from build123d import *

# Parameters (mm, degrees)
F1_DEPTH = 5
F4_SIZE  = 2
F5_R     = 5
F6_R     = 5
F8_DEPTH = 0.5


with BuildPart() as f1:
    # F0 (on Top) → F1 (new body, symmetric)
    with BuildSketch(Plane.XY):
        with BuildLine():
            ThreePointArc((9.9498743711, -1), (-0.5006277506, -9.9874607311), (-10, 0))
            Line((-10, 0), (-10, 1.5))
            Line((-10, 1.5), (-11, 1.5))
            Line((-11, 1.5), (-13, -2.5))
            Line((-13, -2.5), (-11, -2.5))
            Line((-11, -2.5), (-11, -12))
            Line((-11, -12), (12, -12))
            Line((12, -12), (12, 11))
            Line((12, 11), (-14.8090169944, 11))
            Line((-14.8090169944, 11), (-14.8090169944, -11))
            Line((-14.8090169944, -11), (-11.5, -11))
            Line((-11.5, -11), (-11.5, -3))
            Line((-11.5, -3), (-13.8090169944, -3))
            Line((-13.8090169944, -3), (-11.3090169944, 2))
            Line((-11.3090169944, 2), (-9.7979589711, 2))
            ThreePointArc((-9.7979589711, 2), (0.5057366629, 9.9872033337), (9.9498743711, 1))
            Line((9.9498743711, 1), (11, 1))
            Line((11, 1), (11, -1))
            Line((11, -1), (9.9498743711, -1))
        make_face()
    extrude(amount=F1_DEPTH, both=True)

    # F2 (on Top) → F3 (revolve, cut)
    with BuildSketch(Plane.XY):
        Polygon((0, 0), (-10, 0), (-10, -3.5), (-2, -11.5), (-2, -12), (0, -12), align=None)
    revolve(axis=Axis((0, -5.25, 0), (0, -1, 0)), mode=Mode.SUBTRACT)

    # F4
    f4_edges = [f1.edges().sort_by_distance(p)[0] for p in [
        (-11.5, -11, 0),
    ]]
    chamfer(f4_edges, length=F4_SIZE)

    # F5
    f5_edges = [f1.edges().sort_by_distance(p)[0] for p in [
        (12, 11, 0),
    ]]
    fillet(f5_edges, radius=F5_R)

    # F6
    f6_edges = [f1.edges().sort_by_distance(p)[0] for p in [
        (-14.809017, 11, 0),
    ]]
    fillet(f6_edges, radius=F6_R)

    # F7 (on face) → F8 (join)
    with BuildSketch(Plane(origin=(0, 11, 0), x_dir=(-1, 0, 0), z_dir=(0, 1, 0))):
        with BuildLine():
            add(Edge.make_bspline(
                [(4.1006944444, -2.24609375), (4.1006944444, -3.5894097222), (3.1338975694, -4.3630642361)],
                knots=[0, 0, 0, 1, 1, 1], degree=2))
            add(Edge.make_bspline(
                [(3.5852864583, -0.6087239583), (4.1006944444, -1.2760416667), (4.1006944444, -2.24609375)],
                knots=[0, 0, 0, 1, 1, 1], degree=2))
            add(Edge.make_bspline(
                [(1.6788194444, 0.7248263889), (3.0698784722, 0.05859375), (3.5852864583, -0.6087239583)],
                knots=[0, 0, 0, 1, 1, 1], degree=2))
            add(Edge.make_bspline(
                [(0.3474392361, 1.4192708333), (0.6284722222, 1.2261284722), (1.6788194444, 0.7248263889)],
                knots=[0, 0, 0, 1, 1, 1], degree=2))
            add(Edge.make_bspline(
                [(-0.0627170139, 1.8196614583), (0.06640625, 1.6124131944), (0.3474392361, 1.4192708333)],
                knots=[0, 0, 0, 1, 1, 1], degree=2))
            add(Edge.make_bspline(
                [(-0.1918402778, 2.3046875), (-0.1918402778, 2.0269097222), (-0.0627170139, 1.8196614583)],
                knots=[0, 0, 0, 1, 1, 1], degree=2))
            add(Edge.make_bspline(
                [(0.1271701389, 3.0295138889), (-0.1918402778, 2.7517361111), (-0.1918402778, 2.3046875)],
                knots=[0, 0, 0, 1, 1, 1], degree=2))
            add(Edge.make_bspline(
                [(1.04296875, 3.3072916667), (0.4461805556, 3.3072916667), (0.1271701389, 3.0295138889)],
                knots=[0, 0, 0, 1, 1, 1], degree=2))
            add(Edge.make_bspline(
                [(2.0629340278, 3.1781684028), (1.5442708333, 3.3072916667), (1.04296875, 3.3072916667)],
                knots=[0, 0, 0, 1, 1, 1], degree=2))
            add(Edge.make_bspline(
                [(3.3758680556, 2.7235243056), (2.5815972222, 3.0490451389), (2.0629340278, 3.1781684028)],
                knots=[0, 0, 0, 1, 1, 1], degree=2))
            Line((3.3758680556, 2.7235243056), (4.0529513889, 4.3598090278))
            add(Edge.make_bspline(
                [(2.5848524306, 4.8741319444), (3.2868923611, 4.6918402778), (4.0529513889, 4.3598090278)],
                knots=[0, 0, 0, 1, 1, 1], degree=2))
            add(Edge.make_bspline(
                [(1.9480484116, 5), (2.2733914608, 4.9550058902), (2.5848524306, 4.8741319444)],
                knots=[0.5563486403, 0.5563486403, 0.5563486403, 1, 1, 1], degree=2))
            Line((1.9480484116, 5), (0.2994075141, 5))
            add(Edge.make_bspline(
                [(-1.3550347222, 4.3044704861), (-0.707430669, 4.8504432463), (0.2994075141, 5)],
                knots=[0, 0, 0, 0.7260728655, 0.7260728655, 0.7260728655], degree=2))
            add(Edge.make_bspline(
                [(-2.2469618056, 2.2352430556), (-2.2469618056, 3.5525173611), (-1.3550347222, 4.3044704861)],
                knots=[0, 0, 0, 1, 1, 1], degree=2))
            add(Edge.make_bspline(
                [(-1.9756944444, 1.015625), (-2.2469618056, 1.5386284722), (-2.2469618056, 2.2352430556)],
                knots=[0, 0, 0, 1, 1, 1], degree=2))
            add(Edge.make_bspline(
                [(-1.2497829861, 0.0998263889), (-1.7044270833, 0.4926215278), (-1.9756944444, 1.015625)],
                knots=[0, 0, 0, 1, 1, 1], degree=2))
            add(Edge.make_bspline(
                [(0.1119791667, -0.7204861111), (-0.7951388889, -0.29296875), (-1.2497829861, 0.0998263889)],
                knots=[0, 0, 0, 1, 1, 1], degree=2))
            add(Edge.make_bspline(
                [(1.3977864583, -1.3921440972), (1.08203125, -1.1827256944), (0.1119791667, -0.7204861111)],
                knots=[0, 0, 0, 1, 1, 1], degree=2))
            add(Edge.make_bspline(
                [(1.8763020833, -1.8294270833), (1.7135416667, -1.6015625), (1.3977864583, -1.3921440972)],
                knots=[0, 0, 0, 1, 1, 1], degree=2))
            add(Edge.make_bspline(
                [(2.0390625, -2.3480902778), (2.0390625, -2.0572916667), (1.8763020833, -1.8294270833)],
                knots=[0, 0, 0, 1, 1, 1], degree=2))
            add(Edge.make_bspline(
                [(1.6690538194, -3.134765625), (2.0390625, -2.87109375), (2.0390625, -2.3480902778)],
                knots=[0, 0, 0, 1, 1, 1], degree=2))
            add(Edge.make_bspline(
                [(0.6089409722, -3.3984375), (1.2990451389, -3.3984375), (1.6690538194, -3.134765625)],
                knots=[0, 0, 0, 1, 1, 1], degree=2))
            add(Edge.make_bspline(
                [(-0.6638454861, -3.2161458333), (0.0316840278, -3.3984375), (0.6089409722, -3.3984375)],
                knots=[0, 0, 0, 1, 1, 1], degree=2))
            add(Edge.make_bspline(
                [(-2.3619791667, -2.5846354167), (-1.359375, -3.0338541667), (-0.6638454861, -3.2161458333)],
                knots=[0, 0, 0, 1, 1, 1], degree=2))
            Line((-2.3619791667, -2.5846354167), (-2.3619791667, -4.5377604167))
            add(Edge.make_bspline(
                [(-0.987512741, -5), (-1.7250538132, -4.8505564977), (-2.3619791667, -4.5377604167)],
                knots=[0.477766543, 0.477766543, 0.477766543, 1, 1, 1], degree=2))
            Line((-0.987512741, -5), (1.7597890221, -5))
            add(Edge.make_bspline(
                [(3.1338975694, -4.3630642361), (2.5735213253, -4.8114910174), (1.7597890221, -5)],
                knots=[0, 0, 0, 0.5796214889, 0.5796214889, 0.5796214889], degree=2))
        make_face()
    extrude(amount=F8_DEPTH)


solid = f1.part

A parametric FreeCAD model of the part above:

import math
import FreeCAD as App
import Part
import Sketcher
Q = App.Units.Quantity


def edges_at(feature, points):
    """Names of the edges that pass closest to the given points."""
    edges = feature.Shape.Edges
    near = lambda p: min(range(len(edges)), key=lambda i: edges[i].distToShape(Part.Vertex(*p))[0])
    return sorted({f"Edge{near(p) + 1}" for p in points})


def add_polygon(sketch, points):
    """Adds a closed chain of lines whose ends are joined by coincident constraints."""
    first, n = sketch.GeometryCount, len(points)
    for a, b in zip(points, points[1:] + points[:1]):
        sketch.addGeometry(Part.LineSegment(App.Vector(*a, 0), App.Vector(*b, 0)), False)
    for i in range(n):
        sketch.addConstraint(Sketcher.Constraint("Coincident", first + i, 2, first + (i + 1) % n, 1))

doc = App.newDocument("Part")
body = doc.addObject("PartDesign::Body", "Body")

sketch1 = doc.addObject("Sketcher::SketchObject", "Sketch")
body.addObject(sketch1)
sketch1.AttachmentSupport = (doc.XY_Plane, [""])
sketch1.MapMode = "FlatFace"
sketch1.addGeometry([
    Part.ArcOfCircle(Part.Circle(App.Vector(0, 0, 0), App.Vector(0, 0, 1), 10), math.radians(180), math.radians(354.26083)),
    Part.LineSegment(App.Vector(-10, 0, 0), App.Vector(-10, 1.5, 0)),
    Part.LineSegment(App.Vector(-10, 1.5, 0), App.Vector(-11, 1.5, 0)),
    Part.LineSegment(App.Vector(-11, 1.5, 0), App.Vector(-13, -2.5, 0)),
    Part.LineSegment(App.Vector(-13, -2.5, 0), App.Vector(-11, -2.5, 0)),
    Part.LineSegment(App.Vector(-11, -2.5, 0), App.Vector(-11, -12, 0)),
    Part.LineSegment(App.Vector(-11, -12, 0), App.Vector(12, -12, 0)),
    Part.LineSegment(App.Vector(12, -12, 0), App.Vector(12, 11, 0)),
    Part.LineSegment(App.Vector(12, 11, 0), App.Vector(-14.809017, 11, 0)),
    Part.LineSegment(App.Vector(-14.809017, 11, 0), App.Vector(-14.809017, -11, 0)),
    Part.LineSegment(App.Vector(-14.809017, -11, 0), App.Vector(-11.5, -11, 0)),
    Part.LineSegment(App.Vector(-11.5, -11, 0), App.Vector(-11.5, -3, 0)),
    Part.LineSegment(App.Vector(-11.5, -3, 0), App.Vector(-13.809017, -3, 0)),
    Part.LineSegment(App.Vector(-13.809017, -3, 0), App.Vector(-11.309017, 2, 0)),
    Part.LineSegment(App.Vector(-11.309017, 2, 0), App.Vector(-9.797959, 2, 0)),
    Part.ArcOfCircle(Part.Circle(App.Vector(0, 0, 0), App.Vector(0, 0, 1), 10), math.radians(5.73917), math.radians(168.463041)),
    Part.LineSegment(App.Vector(9.949874, 1, 0), App.Vector(11, 1, 0)),
    Part.LineSegment(App.Vector(11, 1, 0), App.Vector(11, -1, 0)),
    Part.LineSegment(App.Vector(11, -1, 0), App.Vector(9.949874, -1, 0)),
], False)
sketch1.addConstraint([
    Sketcher.Constraint("Tangent", 0, 1, 1, 1),
    Sketcher.Constraint("Coincident", 1, 2, 2, 1),
    Sketcher.Constraint("Coincident", 2, 2, 3, 1),
    Sketcher.Constraint("Coincident", 3, 2, 4, 1),
    Sketcher.Constraint("Coincident", 4, 2, 5, 1),
    Sketcher.Constraint("Coincident", 5, 2, 6, 1),
    Sketcher.Constraint("Coincident", 6, 2, 7, 1),
    Sketcher.Constraint("Coincident", 7, 2, 8, 1),
    Sketcher.Constraint("Coincident", 8, 2, 9, 1),
    Sketcher.Constraint("Coincident", 9, 2, 10, 1),
    Sketcher.Constraint("Coincident", 10, 2, 11, 1),
    Sketcher.Constraint("Coincident", 11, 2, 12, 1),
    Sketcher.Constraint("Coincident", 12, 2, 13, 1),
    Sketcher.Constraint("Coincident", 13, 2, 14, 1),
    Sketcher.Constraint("Coincident", 14, 2, 15, 2),
    Sketcher.Constraint("Coincident", 15, 1, 16, 1),
    Sketcher.Constraint("Coincident", 16, 2, 17, 1),
    Sketcher.Constraint("Coincident", 17, 2, 18, 1),
    Sketcher.Constraint("Coincident", 18, 2, 0, 2),
    Sketcher.Constraint("Vertical", 1),
    Sketcher.Constraint("Horizontal", 2),
    Sketcher.Constraint("Horizontal", 4),
    Sketcher.Constraint("Vertical", 5),
    Sketcher.Constraint("Horizontal", 6),
    Sketcher.Constraint("Vertical", 7),
    Sketcher.Constraint("Horizontal", 8),
    Sketcher.Constraint("Vertical", 9),
    Sketcher.Constraint("Horizontal", 10),
    Sketcher.Constraint("Vertical", 11),
    Sketcher.Constraint("Horizontal", 12),
    Sketcher.Constraint("Horizontal", 14),
    Sketcher.Constraint("Horizontal", 16),
    Sketcher.Constraint("Vertical", 17),
    Sketcher.Constraint("Horizontal", 18),
    Sketcher.Constraint("Coincident", 0, 3, -1, 1),
    Sketcher.Constraint("Coincident", 15, 3, -1, 1),
    Sketcher.Constraint("Equal", 0, 15),
    Sketcher.Constraint("Parallel", 3, 13),
    Sketcher.Constraint("Vertical", 2, 2, 4, 2),
    Sketcher.Constraint("Vertical", 15, 1, 18, 2),
    Sketcher.Constraint("Equal", 6, 7),
    Sketcher.Constraint("Equal", 4, 17),
    Sketcher.Constraint("Radius", 0, 10.0),
    Sketcher.Constraint("DistanceX", 2, 2, 2, 1, 1.0),
    Sketcher.Constraint("DistanceX", 4, 1, 4, 2, 2.0),
    Sketcher.Constraint("DistanceX", 6, 1, 6, 2, 23.0),
    Sketcher.Constraint("DistanceY", 9, 2, 9, 1, 22.0),
    Sketcher.Constraint("DistanceY", 11, 1, 11, 2, 8.0),
    Sketcher.Constraint("DistanceY", 1, 1, 1, 2, 1.5),
    Sketcher.Constraint("DistanceY", 5, 2, 5, 1, 9.5),
    Sketcher.Constraint("DistanceY", 5, 2, -1, 1, 12.0),
    Sketcher.Constraint("DistanceY", -1, 1, 13, 2, 2.0),
    Sketcher.Constraint("DistanceX", -1, 1, 16, 2, 11.0),
    Sketcher.Constraint("DistanceX", 10, 2, -1, 1, 11.5),
    Sketcher.Constraint("DistanceX", 14, 1, 14, 2, 1.511058),
    Sketcher.Constraint("DistanceX", 8, 2, 8, 1, 26.809017),
])
pad1 = doc.addObject("PartDesign::Pad", "Pad")
body.addObject(pad1)
pad1.Profile = sketch1
pad1.Length = 10
pad1.Midplane = True

sketch2 = doc.addObject("Sketcher::SketchObject", "Sketch001")
body.addObject(sketch2)
sketch2.AttachmentSupport = (doc.XY_Plane, [""])
sketch2.MapMode = "FlatFace"
add_polygon(sketch2, [(0, 0), (-10, 0), (-10, -3.5), (-2, -11.5), (-2, -12), (0, -12)])
sketch2.addConstraint([
    Sketcher.Constraint("Horizontal", 0),
    Sketcher.Constraint("Vertical", 1),
    Sketcher.Constraint("Vertical", 3),
    Sketcher.Constraint("Horizontal", 4),
    Sketcher.Constraint("Vertical", 5),
    Sketcher.Constraint("Coincident", 5, 2, -1, 1),
    Sketcher.Constraint("DistanceX", 0, 2, 0, 1, 10.0),
    Sketcher.Constraint("DistanceX", 4, 1, 4, 2, 2.0),
    Sketcher.Constraint("DistanceY", 5, 1, 5, 2, 12.0),
    Sketcher.Constraint("Angle", 2, Q("-45 deg")),
    Sketcher.Constraint("DistanceY", 1, 2, 1, 1, 3.5),
])
groove = doc.addObject("PartDesign::Groove", "Groove")
body.addObject(groove)
groove.Profile = sketch2
groove.ReferenceAxis = (sketch2, ["V_Axis"])
groove.Angle = 360
doc.recompute()

chamfer = doc.addObject("PartDesign::Chamfer", "Chamfer")
body.addObject(chamfer)
chamfer.Base = (groove, edges_at(groove, [(-11.5, -11, 0)]))
chamfer.Size = 2
doc.recompute()

fillet = doc.addObject("PartDesign::Fillet", "Fillet")
body.addObject(fillet)
fillet.Base = (chamfer, edges_at(chamfer, [(12, 11, 0)]))
fillet.Radius = 5
doc.recompute()

fillet2 = doc.addObject("PartDesign::Fillet", "Fillet001")
body.addObject(fillet2)
fillet2.Base = (fillet, edges_at(fillet, [(-14.809, 11, 0)]))
fillet2.Radius = 5

sketch3 = doc.addObject("Sketcher::SketchObject", "Sketch002")
body.addObject(sketch3)
sketch3.AttachmentSupport = (doc.XZ_Plane, [""])
sketch3.MapMode = "FlatFace"
sketch3.AttachmentOffset = App.Placement(App.Vector(0, 0, -11), App.Rotation())
sketch3.addGeometry([
    Part.BSplineCurve([App.Vector(-3.585286, -0.608724, 0), App.Vector(-4.100694, -1.276042, 0), App.Vector(-4.100694, -3.58941, 0), App.Vector(-3.133898, -4.363064, 0)], [3, 1, 3], [0, 1, 2.384787472], False, 2, [1, 1, 1, 1], False),
    Part.BSplineCurve([App.Vector(-1.678819, 0.724826, 0), App.Vector(-3.069878, 0.058594, 0), App.Vector(-3.585286, -0.608724, 0)], [3, 3], [0, 1], False, 2, [1, 1, 1], False),
    Part.BSplineCurve([App.Vector(-2.062934, 3.178168, 0), App.Vector(-1.544271, 3.307292, 0), App.Vector(-0.446181, 3.307292, 0), App.Vector(0.19184, 2.751736, 0), App.Vector(0.19184, 2.02691, 0), App.Vector(-0.066406, 1.612413, 0), App.Vector(-0.628472, 1.226128, 0), App.Vector(-1.678819, 0.724826, 0)], [3, 1, 1, 1, 1, 1, 3], [0, 1, 2.19047619, 3.380952381, 4.120665742, 4.860379103, 5.600092464], False, 2, [1, 1, 1, 1, 1, 1, 1, 1], False),
    Part.BSplineCurve([App.Vector(-3.375868, 2.723524, 0), App.Vector(-2.581597, 3.049045, 0), App.Vector(-2.062934, 3.178168, 0)], [3, 3], [0, 1], False, 2, [1, 1, 1], False),
    Part.LineSegment(App.Vector(-3.375868, 2.723524, 0), App.Vector(-4.052951, 4.359809, 0)),
    Part.BSplineCurve([App.Vector(-2.584852, 4.874132, 0), App.Vector(-3.286892, 4.69184, 0), App.Vector(-4.052951, 4.359809, 0)], [3, 3], [0, 1], False, 2, [1, 1, 1], False),
    Part.BSplineCurve([App.Vector(-1.948048, 5, 0), App.Vector(-2.273391, 4.955006, 0), App.Vector(-2.584852, 4.874132, 0)], [3, 3], [0.55634864, 1], False, 2, [1, 1, 1], False),
    Part.LineSegment(App.Vector(-1.948048, 5, 0), App.Vector(-0.299408, 5, 0)),
    Part.BSplineCurve([App.Vector(1.355035, 4.30447, 0), App.Vector(0.707431, 4.850443, 0), App.Vector(-0.299408, 5, 0)], [3, 3], [0, 0.726072866], False, 2, [1, 1, 1], False),
    Part.BSplineCurve([App.Vector(1.975694, 1.015625, 0), App.Vector(2.246962, 1.538628, 0), App.Vector(2.246962, 3.552517, 0), App.Vector(1.355035, 4.30447, 0)], [3, 1, 3], [0, 1, 2.890965732], False, 2, [1, 1, 1, 1], False),
    Part.BSplineCurve([App.Vector(-0.111979, -0.720486, 0), App.Vector(0.795139, -0.292969, 0), App.Vector(1.704427, 0.492622, 0), App.Vector(1.975694, 1.015625, 0)], [3, 1, 3], [0, 1, 2], False, 2, [1, 1, 1, 1], False),
    Part.BSplineCurve([App.Vector(-1.397786, -1.392144, 0), App.Vector(-1.082031, -1.182726, 0), App.Vector(-0.111979, -0.720486, 0)], [3, 3], [0, 1], False, 2, [1, 1, 1], False),
    Part.BSplineCurve([App.Vector(-1.876302, -1.829427, 0), App.Vector(-1.713542, -1.601562, 0), App.Vector(-1.397786, -1.392144, 0)], [3, 3], [0, 1], False, 2, [1, 1, 1], False),
    Part.BSplineCurve([App.Vector(-1.669054, -3.134766, 0), App.Vector(-2.039062, -2.871094, 0), App.Vector(-2.039062, -2.057292, 0), App.Vector(-1.876302, -1.829427, 0)], [3, 1, 3], [0, 1, 1.556016598], False, 2, [1, 1, 1, 1], False),
    Part.BSplineCurve([App.Vector(0.663845, -3.216146, 0), App.Vector(-0.031684, -3.398438, 0), App.Vector(-1.299045, -3.398438, 0), App.Vector(-1.669054, -3.134766, 0)], [3, 1, 3], [0, 1, 2.195488722], False, 2, [1, 1, 1, 1], False),
    Part.BSplineCurve([App.Vector(2.361979, -2.584635, 0), App.Vector(1.359375, -3.033854, 0), App.Vector(0.663845, -3.216146, 0)], [3, 3], [0, 1], False, 2, [1, 1, 1], False),
    Part.LineSegment(App.Vector(2.361979, -2.584635, 0), App.Vector(2.361979, -4.53776, 0)),
    Part.BSplineCurve([App.Vector(0.987513, -5, 0), App.Vector(1.725054, -4.850556, 0), App.Vector(2.361979, -4.53776, 0)], [3, 3], [0.477766543, 1], False, 2, [1, 1, 1], False),
    Part.LineSegment(App.Vector(0.987513, -5, 0), App.Vector(-1.759789, -5, 0)),
    Part.BSplineCurve([App.Vector(-3.133898, -4.363064, 0), App.Vector(-2.573521, -4.811491, 0), App.Vector(-1.759789, -5, 0)], [3, 3], [0, 0.579621489], False, 2, [1, 1, 1], False),
], False)
sketch3.addConstraint([
    Sketcher.Constraint("Block", 0),
    Sketcher.Constraint("Block", 1),
    Sketcher.Constraint("Block", 2),
    Sketcher.Constraint("Block", 3),
    Sketcher.Constraint("Block", 5),
    Sketcher.Constraint("Block", 6),
    Sketcher.Constraint("Block", 8),
    Sketcher.Constraint("Block", 9),
    Sketcher.Constraint("Block", 10),
    Sketcher.Constraint("Block", 11),
    Sketcher.Constraint("Block", 12),
    Sketcher.Constraint("Block", 13),
    Sketcher.Constraint("Block", 14),
    Sketcher.Constraint("Block", 15),
    Sketcher.Constraint("Block", 17),
    Sketcher.Constraint("Block", 19),
    Sketcher.Constraint("Coincident", 3, 1, 4, 1),
    Sketcher.Constraint("Coincident", 4, 2, 5, 2),
    Sketcher.Constraint("Coincident", 6, 1, 7, 1),
    Sketcher.Constraint("Coincident", 7, 2, 8, 2),
    Sketcher.Constraint("Coincident", 15, 1, 16, 1),
    Sketcher.Constraint("Coincident", 16, 2, 17, 2),
    Sketcher.Constraint("Coincident", 17, 1, 18, 1),
    Sketcher.Constraint("Coincident", 18, 2, 19, 2),
])
pad2 = doc.addObject("PartDesign::Pad", "Pad001")
body.addObject(pad2)
pad2.Profile = sketch3
pad2.Length = 0.5
pad2.Reversed = True

doc.recompute()
